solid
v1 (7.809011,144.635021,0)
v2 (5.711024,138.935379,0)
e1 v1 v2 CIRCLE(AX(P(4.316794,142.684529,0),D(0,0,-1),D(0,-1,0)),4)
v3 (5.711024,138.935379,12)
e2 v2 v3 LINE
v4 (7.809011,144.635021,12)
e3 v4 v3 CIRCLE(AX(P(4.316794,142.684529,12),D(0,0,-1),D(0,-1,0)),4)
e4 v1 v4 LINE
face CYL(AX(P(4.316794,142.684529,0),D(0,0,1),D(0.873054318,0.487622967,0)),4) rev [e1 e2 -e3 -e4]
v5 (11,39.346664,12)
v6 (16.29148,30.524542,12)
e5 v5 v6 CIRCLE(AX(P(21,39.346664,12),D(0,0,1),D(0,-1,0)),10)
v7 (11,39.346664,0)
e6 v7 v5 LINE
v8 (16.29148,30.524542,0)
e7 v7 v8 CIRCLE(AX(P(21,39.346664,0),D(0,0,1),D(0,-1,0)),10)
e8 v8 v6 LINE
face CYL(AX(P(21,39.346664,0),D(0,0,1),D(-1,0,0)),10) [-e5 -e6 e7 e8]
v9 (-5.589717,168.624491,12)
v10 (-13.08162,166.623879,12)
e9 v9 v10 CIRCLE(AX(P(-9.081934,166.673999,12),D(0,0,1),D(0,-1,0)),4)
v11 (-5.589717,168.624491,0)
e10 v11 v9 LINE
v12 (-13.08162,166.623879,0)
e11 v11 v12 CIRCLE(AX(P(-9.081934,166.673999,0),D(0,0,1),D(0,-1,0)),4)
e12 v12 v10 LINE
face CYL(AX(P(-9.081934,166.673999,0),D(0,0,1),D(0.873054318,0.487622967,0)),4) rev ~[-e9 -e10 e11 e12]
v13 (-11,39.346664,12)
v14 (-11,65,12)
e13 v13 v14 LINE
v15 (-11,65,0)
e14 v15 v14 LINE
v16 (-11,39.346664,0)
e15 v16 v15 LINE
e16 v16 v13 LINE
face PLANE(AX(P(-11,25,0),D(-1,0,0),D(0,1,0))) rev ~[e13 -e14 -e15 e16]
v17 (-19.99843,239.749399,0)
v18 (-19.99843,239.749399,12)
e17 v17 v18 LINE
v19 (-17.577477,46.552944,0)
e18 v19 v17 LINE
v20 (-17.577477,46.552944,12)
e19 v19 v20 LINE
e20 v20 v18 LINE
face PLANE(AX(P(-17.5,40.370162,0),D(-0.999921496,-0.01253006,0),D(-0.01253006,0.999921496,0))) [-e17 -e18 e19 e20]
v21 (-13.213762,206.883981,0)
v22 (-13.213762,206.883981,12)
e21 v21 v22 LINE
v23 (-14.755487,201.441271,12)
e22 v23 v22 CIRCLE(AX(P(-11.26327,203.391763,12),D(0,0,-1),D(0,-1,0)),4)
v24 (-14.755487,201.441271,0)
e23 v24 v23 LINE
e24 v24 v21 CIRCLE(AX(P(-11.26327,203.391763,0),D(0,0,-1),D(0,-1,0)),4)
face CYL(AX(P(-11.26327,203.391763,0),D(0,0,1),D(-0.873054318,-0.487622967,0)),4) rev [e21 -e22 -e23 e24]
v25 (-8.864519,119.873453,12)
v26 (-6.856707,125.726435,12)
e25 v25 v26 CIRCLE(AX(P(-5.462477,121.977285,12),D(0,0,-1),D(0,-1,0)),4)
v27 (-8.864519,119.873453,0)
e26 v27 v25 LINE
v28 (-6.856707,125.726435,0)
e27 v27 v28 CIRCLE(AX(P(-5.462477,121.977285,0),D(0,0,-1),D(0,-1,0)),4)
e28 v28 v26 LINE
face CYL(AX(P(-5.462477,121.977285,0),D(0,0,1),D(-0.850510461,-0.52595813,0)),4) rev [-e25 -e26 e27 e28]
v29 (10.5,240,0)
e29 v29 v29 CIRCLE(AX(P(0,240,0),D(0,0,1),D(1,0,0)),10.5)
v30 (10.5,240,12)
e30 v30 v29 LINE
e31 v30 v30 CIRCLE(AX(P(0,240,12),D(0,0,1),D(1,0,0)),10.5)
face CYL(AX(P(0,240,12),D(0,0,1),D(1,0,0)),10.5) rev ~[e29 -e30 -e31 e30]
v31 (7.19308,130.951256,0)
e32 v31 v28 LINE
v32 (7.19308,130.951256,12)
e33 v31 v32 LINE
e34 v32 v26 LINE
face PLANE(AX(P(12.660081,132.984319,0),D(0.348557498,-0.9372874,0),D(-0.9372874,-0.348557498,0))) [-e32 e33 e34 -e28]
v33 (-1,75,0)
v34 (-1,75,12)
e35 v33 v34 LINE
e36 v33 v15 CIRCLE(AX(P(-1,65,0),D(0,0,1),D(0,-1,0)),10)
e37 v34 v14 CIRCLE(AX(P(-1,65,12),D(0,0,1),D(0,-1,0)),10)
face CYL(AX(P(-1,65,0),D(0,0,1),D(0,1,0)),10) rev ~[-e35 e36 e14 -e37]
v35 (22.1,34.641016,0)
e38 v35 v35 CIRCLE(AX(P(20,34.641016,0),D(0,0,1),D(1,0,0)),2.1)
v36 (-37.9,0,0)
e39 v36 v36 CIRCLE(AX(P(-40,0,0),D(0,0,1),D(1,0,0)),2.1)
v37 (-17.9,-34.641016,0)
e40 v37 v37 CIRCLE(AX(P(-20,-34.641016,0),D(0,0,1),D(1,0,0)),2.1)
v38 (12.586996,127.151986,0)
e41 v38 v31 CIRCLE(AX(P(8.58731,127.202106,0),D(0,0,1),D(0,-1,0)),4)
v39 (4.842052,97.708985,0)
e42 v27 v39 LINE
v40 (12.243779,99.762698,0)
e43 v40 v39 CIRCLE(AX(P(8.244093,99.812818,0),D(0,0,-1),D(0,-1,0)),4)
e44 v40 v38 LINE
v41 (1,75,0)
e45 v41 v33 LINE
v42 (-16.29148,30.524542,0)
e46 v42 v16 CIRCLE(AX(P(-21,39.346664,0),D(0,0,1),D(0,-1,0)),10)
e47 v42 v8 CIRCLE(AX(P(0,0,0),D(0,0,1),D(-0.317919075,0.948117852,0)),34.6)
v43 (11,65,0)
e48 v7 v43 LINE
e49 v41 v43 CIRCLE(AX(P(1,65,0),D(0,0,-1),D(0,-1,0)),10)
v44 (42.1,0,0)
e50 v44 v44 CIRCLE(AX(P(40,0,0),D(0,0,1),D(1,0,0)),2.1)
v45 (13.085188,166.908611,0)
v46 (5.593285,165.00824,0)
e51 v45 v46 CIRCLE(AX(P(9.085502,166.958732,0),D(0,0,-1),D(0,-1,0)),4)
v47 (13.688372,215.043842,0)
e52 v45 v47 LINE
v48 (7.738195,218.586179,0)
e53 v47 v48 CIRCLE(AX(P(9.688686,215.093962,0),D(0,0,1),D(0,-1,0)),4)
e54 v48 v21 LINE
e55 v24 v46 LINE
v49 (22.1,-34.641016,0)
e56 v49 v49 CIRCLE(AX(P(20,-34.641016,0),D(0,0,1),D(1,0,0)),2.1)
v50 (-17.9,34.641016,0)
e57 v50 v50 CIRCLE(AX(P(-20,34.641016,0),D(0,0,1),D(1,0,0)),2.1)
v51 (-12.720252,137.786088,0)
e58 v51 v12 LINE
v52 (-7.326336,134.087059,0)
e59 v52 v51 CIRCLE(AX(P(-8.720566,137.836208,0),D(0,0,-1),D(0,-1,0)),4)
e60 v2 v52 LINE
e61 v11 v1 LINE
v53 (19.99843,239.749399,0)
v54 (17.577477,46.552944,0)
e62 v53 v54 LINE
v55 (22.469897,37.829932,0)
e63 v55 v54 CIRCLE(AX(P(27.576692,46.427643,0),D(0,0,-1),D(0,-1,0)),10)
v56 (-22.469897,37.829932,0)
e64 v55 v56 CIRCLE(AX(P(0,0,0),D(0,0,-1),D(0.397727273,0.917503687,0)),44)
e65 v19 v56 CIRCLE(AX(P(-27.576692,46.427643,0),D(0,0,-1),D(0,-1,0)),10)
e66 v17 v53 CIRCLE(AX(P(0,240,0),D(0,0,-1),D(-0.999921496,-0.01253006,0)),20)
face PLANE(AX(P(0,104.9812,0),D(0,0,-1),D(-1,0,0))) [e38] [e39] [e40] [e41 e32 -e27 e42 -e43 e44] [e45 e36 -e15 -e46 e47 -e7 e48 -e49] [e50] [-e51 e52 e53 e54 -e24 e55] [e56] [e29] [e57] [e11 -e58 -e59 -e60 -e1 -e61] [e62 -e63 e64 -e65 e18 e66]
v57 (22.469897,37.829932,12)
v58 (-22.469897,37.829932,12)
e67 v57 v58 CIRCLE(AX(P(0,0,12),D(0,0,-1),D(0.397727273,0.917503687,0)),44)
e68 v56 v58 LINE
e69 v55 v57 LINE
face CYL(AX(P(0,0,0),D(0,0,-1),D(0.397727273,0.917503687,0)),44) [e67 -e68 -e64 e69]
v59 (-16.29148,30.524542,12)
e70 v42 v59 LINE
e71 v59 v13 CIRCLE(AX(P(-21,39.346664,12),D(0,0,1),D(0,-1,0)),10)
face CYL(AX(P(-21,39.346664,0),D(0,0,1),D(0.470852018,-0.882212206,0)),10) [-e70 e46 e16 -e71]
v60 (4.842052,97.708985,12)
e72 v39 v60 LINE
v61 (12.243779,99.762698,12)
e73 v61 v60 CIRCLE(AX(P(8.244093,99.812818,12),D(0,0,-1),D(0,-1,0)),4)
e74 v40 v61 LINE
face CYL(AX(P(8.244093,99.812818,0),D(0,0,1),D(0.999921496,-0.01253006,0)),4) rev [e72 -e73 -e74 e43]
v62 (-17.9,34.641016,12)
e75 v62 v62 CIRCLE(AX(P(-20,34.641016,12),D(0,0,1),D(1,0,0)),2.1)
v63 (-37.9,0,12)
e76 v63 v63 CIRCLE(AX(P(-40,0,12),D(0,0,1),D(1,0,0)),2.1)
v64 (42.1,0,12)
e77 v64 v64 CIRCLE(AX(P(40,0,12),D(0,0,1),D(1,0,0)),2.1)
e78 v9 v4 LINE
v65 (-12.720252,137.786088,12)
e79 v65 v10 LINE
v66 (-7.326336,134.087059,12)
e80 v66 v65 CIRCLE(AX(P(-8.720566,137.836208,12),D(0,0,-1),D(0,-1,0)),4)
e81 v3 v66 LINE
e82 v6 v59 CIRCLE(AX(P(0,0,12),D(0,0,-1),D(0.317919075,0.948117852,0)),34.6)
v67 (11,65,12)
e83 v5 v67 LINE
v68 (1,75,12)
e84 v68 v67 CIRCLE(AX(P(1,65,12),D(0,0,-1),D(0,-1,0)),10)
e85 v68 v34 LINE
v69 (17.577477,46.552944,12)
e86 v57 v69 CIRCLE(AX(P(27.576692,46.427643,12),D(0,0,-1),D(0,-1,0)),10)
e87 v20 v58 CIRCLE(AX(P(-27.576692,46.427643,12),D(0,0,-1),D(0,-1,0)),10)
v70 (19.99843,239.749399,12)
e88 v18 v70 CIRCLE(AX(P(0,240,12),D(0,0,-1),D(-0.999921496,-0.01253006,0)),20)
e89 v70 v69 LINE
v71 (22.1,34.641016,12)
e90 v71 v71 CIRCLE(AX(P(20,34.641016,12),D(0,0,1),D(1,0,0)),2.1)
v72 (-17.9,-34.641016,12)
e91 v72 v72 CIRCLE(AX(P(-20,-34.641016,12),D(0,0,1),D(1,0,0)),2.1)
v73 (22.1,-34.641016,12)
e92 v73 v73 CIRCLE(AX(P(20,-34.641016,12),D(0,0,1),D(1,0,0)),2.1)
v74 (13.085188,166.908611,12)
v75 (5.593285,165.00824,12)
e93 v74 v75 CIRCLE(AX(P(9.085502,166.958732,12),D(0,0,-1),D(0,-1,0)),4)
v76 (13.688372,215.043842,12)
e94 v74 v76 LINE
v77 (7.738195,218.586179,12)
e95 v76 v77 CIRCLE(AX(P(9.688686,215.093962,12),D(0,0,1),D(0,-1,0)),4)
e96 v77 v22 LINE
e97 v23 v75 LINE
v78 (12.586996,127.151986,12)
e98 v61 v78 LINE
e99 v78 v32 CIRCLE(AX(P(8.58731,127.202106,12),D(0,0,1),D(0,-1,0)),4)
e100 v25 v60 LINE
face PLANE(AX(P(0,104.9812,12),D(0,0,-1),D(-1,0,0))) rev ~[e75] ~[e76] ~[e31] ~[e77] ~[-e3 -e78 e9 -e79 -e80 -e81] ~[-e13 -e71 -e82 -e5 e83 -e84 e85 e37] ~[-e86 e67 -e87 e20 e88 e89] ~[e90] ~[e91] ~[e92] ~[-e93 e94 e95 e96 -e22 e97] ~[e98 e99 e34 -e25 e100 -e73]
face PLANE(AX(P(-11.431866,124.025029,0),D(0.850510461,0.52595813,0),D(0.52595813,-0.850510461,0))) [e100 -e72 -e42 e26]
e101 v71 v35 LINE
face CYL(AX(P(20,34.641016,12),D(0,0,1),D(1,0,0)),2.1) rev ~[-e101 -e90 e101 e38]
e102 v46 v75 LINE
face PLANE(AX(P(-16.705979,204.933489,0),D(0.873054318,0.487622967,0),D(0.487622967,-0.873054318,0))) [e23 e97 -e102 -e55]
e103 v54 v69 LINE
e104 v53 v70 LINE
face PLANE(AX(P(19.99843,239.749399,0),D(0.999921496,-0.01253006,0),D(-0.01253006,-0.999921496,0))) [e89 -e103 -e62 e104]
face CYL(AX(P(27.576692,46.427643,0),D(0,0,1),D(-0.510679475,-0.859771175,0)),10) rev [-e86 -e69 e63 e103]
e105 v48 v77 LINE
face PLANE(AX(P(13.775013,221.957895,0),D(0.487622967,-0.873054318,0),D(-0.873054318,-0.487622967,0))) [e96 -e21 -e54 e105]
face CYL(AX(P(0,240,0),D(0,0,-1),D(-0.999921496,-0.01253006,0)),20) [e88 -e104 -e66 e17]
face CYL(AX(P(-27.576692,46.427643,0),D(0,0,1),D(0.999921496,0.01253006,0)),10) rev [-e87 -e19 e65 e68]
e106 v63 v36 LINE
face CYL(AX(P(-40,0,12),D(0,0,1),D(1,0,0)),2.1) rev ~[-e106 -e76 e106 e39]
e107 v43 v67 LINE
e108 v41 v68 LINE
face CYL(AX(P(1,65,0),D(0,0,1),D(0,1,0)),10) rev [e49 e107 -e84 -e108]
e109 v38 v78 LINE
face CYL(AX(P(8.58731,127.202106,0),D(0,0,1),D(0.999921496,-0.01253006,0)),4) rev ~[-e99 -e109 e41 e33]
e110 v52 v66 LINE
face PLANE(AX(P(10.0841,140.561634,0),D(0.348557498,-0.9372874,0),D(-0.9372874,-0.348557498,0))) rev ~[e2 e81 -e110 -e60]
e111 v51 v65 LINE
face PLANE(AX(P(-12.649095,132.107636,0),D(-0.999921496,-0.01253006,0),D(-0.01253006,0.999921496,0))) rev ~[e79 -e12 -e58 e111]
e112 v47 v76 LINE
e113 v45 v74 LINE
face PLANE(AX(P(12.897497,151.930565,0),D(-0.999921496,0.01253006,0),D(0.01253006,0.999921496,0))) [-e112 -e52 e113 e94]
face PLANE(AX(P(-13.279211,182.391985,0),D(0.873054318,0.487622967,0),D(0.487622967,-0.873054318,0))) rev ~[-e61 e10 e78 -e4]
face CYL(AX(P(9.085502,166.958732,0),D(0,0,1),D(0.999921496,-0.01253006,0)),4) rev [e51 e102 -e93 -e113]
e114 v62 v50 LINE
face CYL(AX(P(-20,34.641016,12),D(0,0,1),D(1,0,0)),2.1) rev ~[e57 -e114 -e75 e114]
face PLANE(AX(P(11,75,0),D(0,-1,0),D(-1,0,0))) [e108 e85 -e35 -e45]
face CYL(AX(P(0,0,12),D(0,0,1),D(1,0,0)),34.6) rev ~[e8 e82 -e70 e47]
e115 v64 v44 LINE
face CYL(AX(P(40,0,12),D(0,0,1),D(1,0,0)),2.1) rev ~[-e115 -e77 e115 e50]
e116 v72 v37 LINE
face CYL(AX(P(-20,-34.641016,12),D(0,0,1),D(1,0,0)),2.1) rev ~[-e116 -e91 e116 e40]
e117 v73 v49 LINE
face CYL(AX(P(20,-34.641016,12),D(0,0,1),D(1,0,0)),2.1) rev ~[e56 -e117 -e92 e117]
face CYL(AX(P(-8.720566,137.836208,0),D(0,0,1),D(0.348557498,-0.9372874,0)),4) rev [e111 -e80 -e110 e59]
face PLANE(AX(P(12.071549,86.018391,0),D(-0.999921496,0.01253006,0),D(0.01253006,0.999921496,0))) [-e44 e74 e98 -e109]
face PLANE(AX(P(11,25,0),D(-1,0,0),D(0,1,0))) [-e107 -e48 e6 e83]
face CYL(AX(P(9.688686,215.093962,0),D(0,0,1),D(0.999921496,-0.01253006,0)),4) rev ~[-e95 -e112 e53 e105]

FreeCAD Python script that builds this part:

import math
import FreeCAD as App
import Part
import Sketcher


def edges_at(feature, points):
    """Names of the edges that pass closest to the given points."""
    edges = feature.Shape.Edges
    near = lambda p: min(range(len(edges)), key=lambda i: edges[i].distToShape(Part.Vertex(*p))[0])
    return sorted({f"Edge{near(p) + 1}" for p in points})

doc = App.newDocument("Part")
body = doc.addObject("PartDesign::Body", "Body")

sketch1 = doc.addObject("Sketcher::SketchObject", "Sketch")
body.addObject(sketch1)
sketch1.AttachmentSupport = (doc.XY_Plane, [""])
sketch1.MapMode = "FlatFace"
sketch1.addGeometry([
    Part.LineSegment(App.Vector(-20, 240, 0), App.Vector(-18, 40, 0)),
    Part.ArcOfCircle(Part.Circle(App.Vector(0, 0, 0), App.Vector(0, 0, 1), 44), math.radians(113), math.radians(427)),
    Part.LineSegment(App.Vector(18, 40, 0), App.Vector(20, 240, 0)),
    Part.ArcOfCircle(Part.Circle(App.Vector(0, 240, 0), App.Vector(0, 0, 1), 20), math.radians(-1), math.radians(181)),
], False)
sketch1.addConstraint([
    Sketcher.Constraint("Coincident", 0, 2, 1, 1),
    Sketcher.Constraint("Coincident", 1, 2, 2, 1),
    Sketcher.Constraint("Tangent", 2, 2, 3, 1),
    Sketcher.Constraint("Tangent", 3, 2, 0, 1),
    Sketcher.Constraint("Coincident", 1, 3, -1, 1),
    Sketcher.Constraint("Symmetric", 2, 2, 3, 2, -2),
    Sketcher.Constraint("Radius", 1, 44.0),
    Sketcher.Constraint("Radius", 3, 20.0),
    Sketcher.Constraint("DistanceY", -1, 1, 3, 3, 240.0),
    Sketcher.Constraint("DistanceX", 0, 2, 1, 2, 35.0),
])
pad1 = doc.addObject("PartDesign::Pad", "Pad")
body.addObject(pad1)
pad1.Profile = sketch1
pad1.Length = 12

sketch2 = doc.addObject("Sketcher::SketchObject", "Sketch001")
body.addObject(sketch2)
sketch2.AttachmentSupport = (doc.XY_Plane, [""])
sketch2.MapMode = "FlatFace"
sketch2.AttachmentOffset = App.Placement(App.Vector(0, 0, 12), App.Rotation())
sketch2.addGeometry([
    Part.Circle(App.Vector(0, 240, 0), App.Vector(0, 0, 1), 10.5),
    Part.Circle(App.Vector(0, 0, 0), App.Vector(0, 0, 1), 34.6),
    Part.Circle(App.Vector(20, 34.6, 0), App.Vector(0, 0, 1), 2.1),
    Part.Circle(App.Vector(40, 0, 0), App.Vector(0, 0, 1), 2.1),
    Part.Circle(App.Vector(20, -34.6, 0), App.Vector(0, 0, 1), 2.1),
    Part.Circle(App.Vector(-20, -34.6, 0), App.Vector(0, 0, 1), 2.1),
    Part.Circle(App.Vector(-40, 0, 0), App.Vector(0, 0, 1), 2.1),
    Part.Circle(App.Vector(-20, 34.6, 0), App.Vector(0, 0, 1), 2.1),
], False)
sketch2.addConstraint([
    Sketcher.Constraint("Coincident", 1, 3, -1, 1),
    Sketcher.Constraint("Equal", 2, 3),
    Sketcher.Constraint("Equal", 3, 4),
    Sketcher.Constraint("Equal", 4, 5),
    Sketcher.Constraint("Equal", 5, 6),
    Sketcher.Constraint("Equal", 6, 7),
    Sketcher.Constraint("Symmetric", 2, 3, 5, 3, -1, 1),
    Sketcher.Constraint("Symmetric", 3, 3, 6, 3, -1, 1),
    Sketcher.Constraint("Symmetric", 4, 3, 7, 3, -1, 1),
    Sketcher.Constraint("Symmetric", 4, 3, 5, 3, -2),
    Sketcher.Constraint("PointOnObject", 0, 3, -2),
    Sketcher.Constraint("PointOnObject", 3, 3, -1),
    Sketcher.Constraint("Diameter", 0, 21.0),
    Sketcher.Constraint("Diameter", 1, 69.2),
    Sketcher.Constraint("Diameter", 2, 4.2),
    Sketcher.Constraint("DistanceY", -1, 1, 0, 3, 240.0),
    Sketcher.Constraint("DistanceX", -1, 1, 2, 3, 20.0),
    Sketcher.Constraint("DistanceX", -1, 1, 3, 3, 40.0),
    Sketcher.Constraint("DistanceY", -1, 1, 2, 3, 34.641016),
])
pocket1 = doc.addObject("PartDesign::Pocket", "Pocket")
body.addObject(pocket1)
pocket1.Profile = sketch2
pocket1.Length = 12
doc.recompute()

fillet = doc.addObject("PartDesign::Fillet", "Fillet")
body.addObject(fillet)
fillet.Base = (pocket1, edges_at(pocket1, [(-17.5, 40.37, 6), (17.5, 40.37, 6)]))
fillet.Radius = 10

sketch3 = doc.addObject("Sketcher::SketchObject", "Sketch002")
body.addObject(sketch3)
sketch3.AttachmentSupport = (doc.XY_Plane, [""])
sketch3.MapMode = "FlatFace"
sketch3.addGeometry([
    Part.LineSegment(App.Vector(11, 75, 0), App.Vector(11, 25, 0)),
    Part.LineSegment(App.Vector(11, 25, 0), App.Vector(-11, 25, 0)),
    Part.LineSegment(App.Vector(-11, 25, 0), App.Vector(-11, 75, 0)),
    Part.LineSegment(App.Vector(-11, 75, 0), App.Vector(11, 75, 0)),
], False)
sketch3.addConstraint([
    Sketcher.Constraint("Coincident", 0, 2, 1, 1),
    Sketcher.Constraint("Coincident", 1, 2, 2, 1),
    Sketcher.Constraint("Coincident", 2, 2, 3, 1),
    Sketcher.Constraint("Coincident", 3, 2, 0, 1),
    Sketcher.Constraint("Vertical", 0),
    Sketcher.Constraint("Horizontal", 1),
    Sketcher.Constraint("Vertical", 2),
    Sketcher.Constraint("Horizontal", 3),
    Sketcher.Constraint("DistanceX", 1, 2, 1, 1, 22.0),
    Sketcher.Constraint("DistanceY", 0, 2, 0, 1, 50.0),
    Sketcher.Constraint("DistanceX", -1, 1, 0, 2, 11.0),
    Sketcher.Constraint("DistanceY", -1, 1, 0, 2, 25.0),
])
pocket2 = doc.addObject("PartDesign::Pocket", "Pocket001")
body.addObject(pocket2)
pocket2.Profile = sketch3
pocket2.Length = 12
pocket2.Reversed = True
doc.recompute()

fillet2 = doc.addObject("PartDesign::Fillet", "Fillet001")
body.addObject(fillet2)
fillet2.Base = (pocket2, edges_at(pocket2, [
    (-11, 32.805, 6),
    (11, 32.805, 6),
    (-11, 75, 6),
    (11, 75, 6),
]))
fillet2.Radius = 10

sketch4 = doc.addObject("Sketcher::SketchObject", "Sketch003")
body.addObject(sketch4)
sketch4.AttachmentSupport = (doc.XY_Plane, [""])
sketch4.MapMode = "FlatFace"
sketch4.addGeometry([
    Part.LineSegment(App.Vector(-16.705979, 204.933489, 0), App.Vector(13.775013, 221.957895, 0)),
    Part.LineSegment(App.Vector(13.775013, 221.957895, 0), App.Vector(12.897497, 151.930565, 0)),
    Part.LineSegment(App.Vector(12.897497, 151.930565, 0), App.Vector(-16.705979, 204.933489, 0)),
    Part.LineSegment(App.Vector(-13.279211, 182.391985, 0), App.Vector(10.0841, 140.561634, 0)),
    Part.LineSegment(App.Vector(10.0841, 140.561634, 0), App.Vector(-12.649095, 132.107636, 0)),
    Part.LineSegment(App.Vector(-12.649095, 132.107636, 0), App.Vector(-13.279211, 182.391985, 0)),
    Part.LineSegment(App.Vector(-11.431866, 124.025029, 0), App.Vector(12.660081, 132.984319, 0)),
    Part.LineSegment(App.Vector(12.660081, 132.984319, 0), App.Vector(12.071549, 86.018391, 0)),
    Part.LineSegment(App.Vector(12.071549, 86.018391, 0), App.Vector(-11.431866, 124.025029, 0)),
], False)
sketch4.addConstraint([
    Sketcher.Constraint("Coincident", 0, 2, 1, 1),
    Sketcher.Constraint("Coincident", 1, 2, 2, 1),
    Sketcher.Constraint("Coincident", 2, 2, 0, 1),
    Sketcher.Constraint("Coincident", 3, 2, 4, 1),
    Sketcher.Constraint("Coincident", 4, 2, 5, 1),
    Sketcher.Constraint("Coincident", 5, 2, 3, 1),
    Sketcher.Constraint("Coincident", 6, 2, 7, 1),
    Sketcher.Constraint("Coincident", 7, 2, 8, 1),
    Sketcher.Constraint("Coincident", 8, 2, 6, 1),
    Sketcher.Constraint("DistanceX", -1, 1, 3, 2, 10.0841),
    Sketcher.Constraint("DistanceX", 2, 2, -1, 1, 16.705979),
    Sketcher.Constraint("DistanceY", -1, 1, 2, 2, 204.933489),
    Sketcher.Constraint("DistanceX", 5, 2, -1, 1, 13.279211),
    Sketcher.Constraint("DistanceX", -1, 1, 6, 2, 12.660081),
    Sketcher.Constraint("DistanceY", -1, 1, 6, 2, 132.984319),
    Sketcher.Constraint("DistanceX", -1, 1, 7, 2, 12.071549),
    Sketcher.Constraint("DistanceY", -1, 1, 7, 2, 86.018391),
    Sketcher.Constraint("DistanceY", -1, 1, 8, 2, 124.025029),
    Sketcher.Constraint("DistanceY", 1, 2, 0, 2, 70.02733),
    Sketcher.Constraint("DistanceX", 2, 2, 0, 2, 30.480992),
    Sketcher.Constraint("DistanceY", 3, 2, 1, 2, 11.368931),
    Sketcher.Constraint("DistanceY", 4, 2, 1, 2, 19.822929),
    Sketcher.Constraint("DistanceY", 1, 2, 5, 2, 30.46142),
    Sketcher.Constraint("DistanceX", 7, 2, 1, 2, 0.825948),
    Sketcher.Constraint("DistanceX", 4, 2, 8, 2, 1.217229),
    Sketcher.Constraint("Distance", 0, 34.913053),
    Sketcher.Constraint("Distance", 4, 24.254242),
])
pocket3 = doc.addObject("PartDesign::Pocket", "Pocket002")
body.addObject(pocket3)
pocket3.Profile = sketch4
pocket3.Type = "ThroughAll"
pocket3.Reversed = True
doc.recompute()

fillet3 = doc.addObject("PartDesign::Fillet", "Fillet002")
body.addObject(fillet3)
fillet3.Base = (pocket3, edges_at(pocket3, [
    (-13.279, 182.392, 6),
    (-12.649, 132.108, 6),
    (10.084, 140.562, 6),
    (12.072, 86.018, 6),
    (12.66, 132.984, 6),
    (-11.432, 124.025, 6),
    (12.897, 151.931, 6),
    (13.775, 221.958, 6),
    (-16.706, 204.933, 6),
]))
fillet3.Radius = 4

doc.recompute()
